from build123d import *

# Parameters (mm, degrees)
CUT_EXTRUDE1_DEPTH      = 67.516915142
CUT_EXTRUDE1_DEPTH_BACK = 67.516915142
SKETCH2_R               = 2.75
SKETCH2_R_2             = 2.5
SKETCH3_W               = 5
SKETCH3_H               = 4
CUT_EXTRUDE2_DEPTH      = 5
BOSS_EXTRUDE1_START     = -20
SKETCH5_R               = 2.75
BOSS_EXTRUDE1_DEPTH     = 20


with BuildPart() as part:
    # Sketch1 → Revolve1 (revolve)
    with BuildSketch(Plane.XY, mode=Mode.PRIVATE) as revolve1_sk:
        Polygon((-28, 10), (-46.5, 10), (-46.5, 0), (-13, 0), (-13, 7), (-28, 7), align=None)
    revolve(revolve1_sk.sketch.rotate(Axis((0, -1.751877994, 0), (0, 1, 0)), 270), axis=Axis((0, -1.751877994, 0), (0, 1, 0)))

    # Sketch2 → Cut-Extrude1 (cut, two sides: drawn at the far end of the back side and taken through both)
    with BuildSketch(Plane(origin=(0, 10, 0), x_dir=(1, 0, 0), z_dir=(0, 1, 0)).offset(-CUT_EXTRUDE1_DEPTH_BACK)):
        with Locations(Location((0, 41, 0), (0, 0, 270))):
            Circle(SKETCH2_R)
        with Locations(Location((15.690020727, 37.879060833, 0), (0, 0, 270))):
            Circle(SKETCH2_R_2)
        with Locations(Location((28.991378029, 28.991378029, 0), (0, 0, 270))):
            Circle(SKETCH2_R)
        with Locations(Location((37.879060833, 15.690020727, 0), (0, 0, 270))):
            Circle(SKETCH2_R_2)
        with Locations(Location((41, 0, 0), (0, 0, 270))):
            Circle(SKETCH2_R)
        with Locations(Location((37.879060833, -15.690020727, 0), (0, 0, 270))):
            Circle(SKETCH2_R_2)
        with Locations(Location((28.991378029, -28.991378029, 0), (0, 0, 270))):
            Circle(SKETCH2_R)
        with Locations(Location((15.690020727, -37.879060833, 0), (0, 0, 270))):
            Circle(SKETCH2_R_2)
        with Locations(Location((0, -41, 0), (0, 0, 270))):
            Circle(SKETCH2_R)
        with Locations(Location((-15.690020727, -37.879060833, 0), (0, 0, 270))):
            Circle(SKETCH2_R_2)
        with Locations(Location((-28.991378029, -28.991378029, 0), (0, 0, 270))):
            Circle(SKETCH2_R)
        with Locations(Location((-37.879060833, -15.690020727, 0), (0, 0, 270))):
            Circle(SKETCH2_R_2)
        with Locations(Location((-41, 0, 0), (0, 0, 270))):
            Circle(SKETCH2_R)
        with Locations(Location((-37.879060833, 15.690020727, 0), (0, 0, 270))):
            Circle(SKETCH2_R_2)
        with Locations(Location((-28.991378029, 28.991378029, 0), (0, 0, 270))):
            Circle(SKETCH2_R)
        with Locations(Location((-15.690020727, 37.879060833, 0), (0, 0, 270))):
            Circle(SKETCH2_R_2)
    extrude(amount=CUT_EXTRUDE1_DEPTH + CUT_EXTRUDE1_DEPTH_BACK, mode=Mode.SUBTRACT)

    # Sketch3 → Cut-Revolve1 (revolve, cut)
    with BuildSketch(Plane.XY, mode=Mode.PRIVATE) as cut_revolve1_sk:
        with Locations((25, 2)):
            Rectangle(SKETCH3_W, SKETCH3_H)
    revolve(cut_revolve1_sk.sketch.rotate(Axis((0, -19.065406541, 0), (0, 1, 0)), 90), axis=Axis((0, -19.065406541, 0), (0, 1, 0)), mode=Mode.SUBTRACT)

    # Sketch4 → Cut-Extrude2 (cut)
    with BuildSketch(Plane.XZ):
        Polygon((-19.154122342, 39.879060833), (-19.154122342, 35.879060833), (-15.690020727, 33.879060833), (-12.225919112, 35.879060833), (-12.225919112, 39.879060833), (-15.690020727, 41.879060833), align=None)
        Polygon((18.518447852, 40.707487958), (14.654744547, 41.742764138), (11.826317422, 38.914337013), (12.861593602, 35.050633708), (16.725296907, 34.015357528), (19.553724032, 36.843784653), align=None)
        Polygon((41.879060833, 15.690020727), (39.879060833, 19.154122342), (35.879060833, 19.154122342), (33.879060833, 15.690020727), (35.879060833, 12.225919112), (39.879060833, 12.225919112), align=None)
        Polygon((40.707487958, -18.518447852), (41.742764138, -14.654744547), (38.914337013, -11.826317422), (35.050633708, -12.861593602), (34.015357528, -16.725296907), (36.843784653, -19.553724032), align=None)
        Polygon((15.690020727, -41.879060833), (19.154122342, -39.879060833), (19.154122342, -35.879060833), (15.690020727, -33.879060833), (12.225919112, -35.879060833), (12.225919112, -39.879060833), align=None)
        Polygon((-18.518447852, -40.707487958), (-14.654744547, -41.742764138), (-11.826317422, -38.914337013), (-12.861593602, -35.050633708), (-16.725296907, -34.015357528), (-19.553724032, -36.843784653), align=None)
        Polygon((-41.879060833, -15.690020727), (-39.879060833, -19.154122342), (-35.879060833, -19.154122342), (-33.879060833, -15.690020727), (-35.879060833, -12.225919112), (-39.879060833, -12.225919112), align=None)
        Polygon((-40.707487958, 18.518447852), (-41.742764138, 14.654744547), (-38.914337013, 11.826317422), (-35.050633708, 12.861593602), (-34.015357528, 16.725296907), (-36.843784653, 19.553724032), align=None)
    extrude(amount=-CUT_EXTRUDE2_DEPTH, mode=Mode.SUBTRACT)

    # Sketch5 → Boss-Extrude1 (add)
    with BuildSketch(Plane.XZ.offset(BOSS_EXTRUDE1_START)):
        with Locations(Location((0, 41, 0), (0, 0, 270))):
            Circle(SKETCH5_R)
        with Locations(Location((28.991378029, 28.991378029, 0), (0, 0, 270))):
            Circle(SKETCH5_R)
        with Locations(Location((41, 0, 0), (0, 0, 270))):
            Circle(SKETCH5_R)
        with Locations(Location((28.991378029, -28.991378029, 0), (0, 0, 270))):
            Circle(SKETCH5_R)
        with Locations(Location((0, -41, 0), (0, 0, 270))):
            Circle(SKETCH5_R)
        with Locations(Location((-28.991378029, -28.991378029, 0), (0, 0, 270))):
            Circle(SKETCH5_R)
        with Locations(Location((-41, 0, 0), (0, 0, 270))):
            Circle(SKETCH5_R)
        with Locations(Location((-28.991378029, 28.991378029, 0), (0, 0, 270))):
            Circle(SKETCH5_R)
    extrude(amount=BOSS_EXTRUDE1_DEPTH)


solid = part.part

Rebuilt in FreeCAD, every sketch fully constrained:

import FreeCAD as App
import Part
import Sketcher

V = App.Vector
Q = App.Units.Quantity


def add_polygon(sketch, points):
    """Adds a closed chain of lines whose ends are joined by coincident constraints."""
    first, n = sketch.GeometryCount, len(points)
    for a, b in zip(points, points[1:] + points[:1]):
        sketch.addGeometry(Part.LineSegment(App.Vector(*a, 0), App.Vector(*b, 0)), False)
    for i in range(n):
        sketch.addConstraint(Sketcher.Constraint("Coincident", first + i, 2, first + (i + 1) % n, 1))

doc = App.newDocument("Part")
body = doc.addObject("PartDesign::Body", "Body")

# Sketch on XY plane
sketch1 = body.newObject("Sketcher::SketchObject", "Sketch")
sketch1.AttachmentSupport = (doc.getObject("XY_Plane"), [""])
sketch1.MapMode = "FlatFace"
add_polygon(sketch1, [(-28, 10), (-46.5, 10), (-46.5, 0), (-13, 0), (-13, 7), (-28, 7)])  # lines 0-5
sketch1.addConstraint(Sketcher.Constraint("Horizontal", 0))
sketch1.addConstraint(Sketcher.Constraint("Vertical", 1))
sketch1.addConstraint(Sketcher.Constraint("Horizontal", 2))
sketch1.addConstraint(Sketcher.Constraint("Vertical", 3))
sketch1.addConstraint(Sketcher.Constraint("Horizontal", 4))
sketch1.addConstraint(Sketcher.Constraint("Vertical", 5))
sketch1.addConstraint(Sketcher.Constraint("PointOnObject", 1, 2, -1))
sketch1.addConstraint(Sketcher.Constraint("DistanceX", 4, 2, 4, 1, Q("15 mm")))
sketch1.addConstraint(Sketcher.Constraint("DistanceY", 1, 2, 1, 1, Q("10 mm")))
sketch1.addConstraint(Sketcher.Constraint("DistanceY", 3, 1, 3, 2, Q("7 mm")))
sketch1.addConstraint(Sketcher.Constraint("DistanceX", 0, 2, 0, 1, Q("18.5 mm")))
sketch1.addConstraint(Sketcher.Constraint("DistanceX", 2, 2, -1, 1, Q("13 mm")))
revolution = body.newObject("PartDesign::Revolution", "Revolution")
revolution.Profile = sketch1
revolution.ReferenceAxis = (sketch1, ["V_Axis"])
revolution.Angle = 360

# Sketch on XZ plane
sketch2 = body.newObject("Sketcher::SketchObject", "Sketch001")
sketch2.AttachmentSupport = (doc.getObject("XZ_Plane"), [""])
sketch2.MapMode = "FlatFace"
sketch2.AttachmentOffset = App.Placement(V(0, 0, -10), App.Rotation())
sketch2.addGeometry(Part.Circle(V(0, -41, 0), V(0, 0, 1), 2.8), False)
sketch2.addGeometry(Part.Circle(V(15.7, -37.9, 0), V(0, 0, 1), 2.5), False)
sketch2.addGeometry(Part.Circle(V(29, -29, 0), V(0, 0, 1), 2.8), False)
sketch2.addGeometry(Part.Circle(V(37.9, -15.7, 0), V(0, 0, 1), 2.5), False)
sketch2.addGeometry(Part.Circle(V(41, 0, 0), V(0, 0, 1), 2.8), False)
sketch2.addGeometry(Part.Circle(V(37.9, 15.7, 0), V(0, 0, 1), 2.5), False)
sketch2.addGeometry(Part.Circle(V(29, 29, 0), V(0, 0, 1), 2.8), False)
sketch2.addGeometry(Part.Circle(V(15.7, 37.9, 0), V(0, 0, 1), 2.5), False)
sketch2.addGeometry(Part.Circle(V(0, 41, 0), V(0, 0, 1), 2.8), False)
sketch2.addGeometry(Part.Circle(V(-15.7, 37.9, 0), V(0, 0, 1), 2.5), False)
sketch2.addGeometry(Part.Circle(V(-29, 29, 0), V(0, 0, 1), 2.8), False)
sketch2.addGeometry(Part.Circle(V(-37.9, 15.7, 0), V(0, 0, 1), 2.5), False)
sketch2.addGeometry(Part.Circle(V(-41, 0, 0), V(0, 0, 1), 2.8), False)
sketch2.addGeometry(Part.Circle(V(-37.9, -15.7, 0), V(0, 0, 1), 2.5), False)
sketch2.addGeometry(Part.Circle(V(-29, -29, 0), V(0, 0, 1), 2.8), False)
sketch2.addGeometry(Part.Circle(V(-15.7, -37.9, 0), V(0, 0, 1), 2.5), False)
sketch2.addConstraint(Sketcher.Constraint("Equal", 0, 2))
sketch2.addConstraint(Sketcher.Constraint("Equal", 1, 3))
sketch2.addConstraint(Sketcher.Constraint("Equal", 2, 4))
sketch2.addConstraint(Sketcher.Constraint("Equal", 3, 5))
sketch2.addConstraint(Sketcher.Constraint("Equal", 4, 6))
sketch2.addConstraint(Sketcher.Constraint("Equal", 5, 7))
sketch2.addConstraint(Sketcher.Constraint("Equal", 6, 8))
sketch2.addConstraint(Sketcher.Constraint("Equal", 7, 9))
sketch2.addConstraint(Sketcher.Constraint("Equal", 8, 10))
sketch2.addConstraint(Sketcher.Constraint("Equal", 9, 11))
sketch2.addConstraint(Sketcher.Constraint("Equal", 10, 12))
sketch2.addConstraint(Sketcher.Constraint("Equal", 11, 13))
sketch2.addConstraint(Sketcher.Constraint("Equal", 12, 14))
sketch2.addConstraint(Sketcher.Constraint("Equal", 13, 15))
sketch2.addConstraint(Sketcher.Constraint("Symmetric", 0, 3, 8, 3, -1, 1))
sketch2.addConstraint(Sketcher.Constraint("Symmetric", 1, 3, 9, 3, -1, 1))
sketch2.addConstraint(Sketcher.Constraint("Symmetric", 2, 3, 10, 3, -1, 1))
sketch2.addConstraint(Sketcher.Constraint("Symmetric", 3, 3, 11, 3, -1, 1))
sketch2.addConstraint(Sketcher.Constraint("Symmetric", 4, 3, 12, 3, -1, 1))
sketch2.addConstraint(Sketcher.Constraint("Symmetric", 5, 3, 13, 3, -1, 1))
sketch2.addConstraint(Sketcher.Constraint("Symmetric", 6, 3, 14, 3, -1, 1))
sketch2.addConstraint(Sketcher.Constraint("Symmetric", 7, 3, 15, 3, -1, 1))
sketch2.addConstraint(Sketcher.Constraint("Symmetric", 7, 3, 9, 3, -2))
sketch2.addConstraint(Sketcher.Constraint("Symmetric", 6, 3, 10, 3, -2))
sketch2.addConstraint(Sketcher.Constraint("Symmetric", 5, 3, 11, 3, -2))
sketch2.addConstraint(Sketcher.Constraint("PointOnObject", 0, 3, -2))
sketch2.addConstraint(Sketcher.Constraint("PointOnObject", 4, 3, -1))
sketch2.addConstraint(Sketcher.Constraint("Diameter", 1, Q("5 mm")))
sketch2.addConstraint(Sketcher.Constraint("Diameter", 0, Q("5.5 mm")))
sketch2.addConstraint(Sketcher.Constraint("DistanceY", 0, 3, -1, 1, Q("41 mm")))
sketch2.addConstraint(Sketcher.Constraint("DistanceX", -1, 1, 4, 3, Q("41 mm")))
sketch2.addConstraint(Sketcher.Constraint("DistanceY", 2, 3, 5, 3, Q("44.681399 mm")))
sketch2.addConstraint(Sketcher.Constraint("DistanceX", 9, 3, 6, 3, Q("44.681399 mm")))
sketch2.addConstraint(Sketcher.Constraint("DistanceX", -1, 1, 1, 3, Q("15.690021 mm")))
sketch2.addConstraint(Sketcher.Constraint("DistanceY", 1, 3, -1, 1, Q("37.879061 mm")))
sketch2.addConstraint(Sketcher.Constraint("DistanceY", 2, 3, -1, 1, Q("28.991378 mm")))
sketch2.addConstraint(Sketcher.Constraint("DistanceX", -1, 1, 3, 3, Q("37.879061 mm")))
pocket1 = body.newObject("PartDesign::Pocket", "Pocket")
pocket1.Profile = sketch2
pocket1.Type = "ThroughAll"
pocket1.Midplane = True

# Sketch on XY plane
sketch3 = body.newObject("Sketcher::SketchObject", "Sketch002")
sketch3.AttachmentSupport = (doc.getObject("XY_Plane"), [""])
sketch3.MapMode = "FlatFace"
add_polygon(sketch3, [(22.5, 4), (22.5, 0), (27.5, 0), (27.5, 4)])  # lines 0-3
sketch3.addConstraint(Sketcher.Constraint("Vertical", 0))
sketch3.addConstraint(Sketcher.Constraint("Horizontal", 1))
sketch3.addConstraint(Sketcher.Constraint("Vertical", 2))
sketch3.addConstraint(Sketcher.Constraint("Horizontal", 3))
sketch3.addConstraint(Sketcher.Constraint("PointOnObject", 0, 2, -1))
sketch3.addConstraint(Sketcher.Constraint("DistanceX", 1, 1, 1, 2, Q("5 mm")))
sketch3.addConstraint(Sketcher.Constraint("DistanceY", 0, 2, 0, 1, Q("4 mm")))
sketch3.addConstraint(Sketcher.Constraint("DistanceX", -1, 1, 0, 2, Q("22.5 mm")))
groove = body.newObject("PartDesign::Groove", "Groove")
groove.Profile = sketch3
groove.ReferenceAxis = (sketch3, ["V_Axis"])
groove.Angle = 360

# Sketch on XZ plane
sketch4 = body.newObject("Sketcher::SketchObject", "Sketch003")
sketch4.AttachmentSupport = (doc.getObject("XZ_Plane"), [""])
sketch4.MapMode = "FlatFace"
add_polygon(sketch4, [(-19.2, 39.9), (-19.2, 35.9), (-15.7, 33.9), (-12.2, 35.9), (-12.2, 39.9), (-15.7, 41.9)])  # lines 0-5
add_polygon(sketch4, [(18.5, 40.7), (14.7, 41.7), (11.8, 38.9), (12.9, 35.1), (16.7, 34), (19.6, 36.8)])  # lines 6-11
add_polygon(sketch4, [(41.9, 15.7), (39.9, 19.2), (35.9, 19.2), (33.9, 15.7), (35.9, 12.2), (39.9, 12.2)])  # lines 12-17
add_polygon(sketch4, [(40.7, -18.5), (41.7, -14.7), (38.9, -11.8), (35.1, -12.9), (34, -16.7), (36.8, -19.6)])  # lines 18-23
add_polygon(sketch4, [(15.7, -41.9), (19.2, -39.9), (19.2, -35.9), (15.7, -33.9), (12.2, -35.9), (12.2, -39.9)])  # lines 24-29
add_polygon(sketch4, [(-18.5, -40.7), (-14.7, -41.7), (-11.8, -38.9), (-12.9, -35.1), (-16.7, -34), (-19.6, -36.8)])  # lines 30-35
add_polygon(sketch4, [(-41.9, -15.7), (-39.9, -19.2), (-35.9, -19.2), (-33.9, -15.7), (-35.9, -12.2), (-39.9, -12.2)])  # lines 36-41
add_polygon(sketch4, [(-40.7, 18.5), (-41.7, 14.7), (-38.9, 11.8), (-35.1, 12.9), (-34, 16.7), (-36.8, 19.6)])  # lines 42-47
sketch4.addConstraint(Sketcher.Constraint("Vertical", 0))
sketch4.addConstraint(Sketcher.Constraint("Vertical", 3))
sketch4.addConstraint(Sketcher.Constraint("Horizontal", 13))
sketch4.addConstraint(Sketcher.Constraint("Horizontal", 16))
sketch4.addConstraint(Sketcher.Constraint("Vertical", 25))
sketch4.addConstraint(Sketcher.Constraint("Vertical", 28))
sketch4.addConstraint(Sketcher.Constraint("Horizontal", 37))
sketch4.addConstraint(Sketcher.Constraint("Horizontal", 40))
sketch4.addConstraint(Sketcher.Constraint("Symmetric", 5, 2, 24, 2, -1, 1))
sketch4.addConstraint(Sketcher.Constraint("Symmetric", 1, 2, 26, 2, -1, 1))
sketch4.addConstraint(Sketcher.Constraint("Symmetric", 2, 2, 27, 2, -1, 1))
sketch4.addConstraint(Sketcher.Constraint("Symmetric", 4, 2, 29, 2, -1, 1))
sketch4.addConstraint(Sketcher.Constraint("Symmetric", 6, 2, 30, 2, -1, 1))
sketch4.addConstraint(Sketcher.Constraint("Symmetric", 7, 2, 31, 2, -1, 1))
sketch4.addConstraint(Sketcher.Constraint("Symmetric", 8, 2, 32, 2, -1, 1))
sketch4.addConstraint(Sketcher.Constraint("Symmetric", 9, 2, 33, 2, -1, 1))
sketch4.addConstraint(Sketcher.Constraint("Symmetric", 10, 2, 34, 2, -1, 1))
sketch4.addConstraint(Sketcher.Constraint("Symmetric", 11, 2, 35, 2, -1, 1))
sketch4.addConstraint(Sketcher.Constraint("Symmetric", 12, 2, 36, 2, -1, 1))
sketch4.addConstraint(Sketcher.Constraint("Symmetric", 14, 2, 38, 2, -1, 1))
sketch4.addConstraint(Sketcher.Constraint("Symmetric", 15, 2, 39, 2, -1, 1))
sketch4.addConstraint(Sketcher.Constraint("Symmetric", 17, 2, 41, 2, -1, 1))
sketch4.addConstraint(Sketcher.Constraint("Symmetric", 18, 2, 42, 2, -1, 1))
sketch4.addConstraint(Sketcher.Constraint("Symmetric", 19, 2, 43, 2, -1, 1))
sketch4.addConstraint(Sketcher.Constraint("Symmetric", 20, 2, 44, 2, -1, 1))
sketch4.addConstraint(Sketcher.Constraint("Symmetric", 21, 2, 45, 2, -1, 1))
sketch4.addConstraint(Sketcher.Constraint("Symmetric", 22, 2, 46, 2, -1, 1))
sketch4.addConstraint(Sketcher.Constraint("Symmetric", 23, 2, 47, 2, -1, 1))
sketch4.addConstraint(Sketcher.Constraint("Parallel", 1, 4))
sketch4.addConstraint(Sketcher.Constraint("Parallel", 2, 5))
sketch4.addConstraint(Sketcher.Constraint("Parallel", 6, 9))
sketch4.addConstraint(Sketcher.Constraint("Parallel", 7, 10))
sketch4.addConstraint(Sketcher.Constraint("Parallel", 8, 11))
sketch4.addConstraint(Sketcher.Constraint("Perpendicular", 5, 12))
sketch4.addConstraint(Sketcher.Constraint("Perpendicular", 4, 14))
sketch4.addConstraint(Sketcher.Constraint("Parallel", 12, 15))
sketch4.addConstraint(Sketcher.Constraint("Parallel", 14, 17))
sketch4.addConstraint(Sketcher.Constraint("Perpendicular", 9, 18))
sketch4.addConstraint(Sketcher.Constraint("Perpendicular", 10, 19))
sketch4.addConstraint(Sketcher.Constraint("Perpendicular", 11, 20))
sketch4.addConstraint(Sketcher.Constraint("Parallel", 18, 21))
sketch4.addConstraint(Sketcher.Constraint("Parallel", 19, 22))
sketch4.addConstraint(Sketcher.Constraint("Parallel", 20, 23))
sketch4.addConstraint(Sketcher.Constraint("Perpendicular", 17, 26))
sketch4.addConstraint(Sketcher.Constraint("Parallel", 26, 29))
sketch4.addConstraint(Sketcher.Constraint("Perpendicular", 29, 38))
sketch4.addConstraint(Sketcher.Constraint("Parallel", 38, 41))
sketch4.addConstraint(Sketcher.Constraint("Horizontal", 0, 2, 2, 2))
sketch4.addConstraint(Sketcher.Constraint("Horizontal", 3, 2, 5, 2))
sketch4.addConstraint(Sketcher.Constraint("Horizontal", 14, 2, 17, 2))
sketch4.addConstraint(Sketcher.Constraint("Vertical", 1, 2, 4, 2))
sketch4.addConstraint(Sketcher.Constraint("Vertical", 13, 2, 15, 2))
sketch4.addConstraint(Sketcher.Constraint("Equal", 40, 0))
sketch4.addConstraint(Sketcher.Constraint("Equal", 5, 6))
sketch4.addConstraint(Sketcher.Constraint("Equal", 6, 7))
sketch4.addConstraint(Sketcher.Constraint("Equal", 7, 8))
sketch4.addConstraint(Sketcher.Constraint("Equal", 8, 9))
sketch4.addConstraint(Sketcher.Constraint("Equal", 11, 12))
sketch4.addConstraint(Sketcher.Constraint("Equal", 17, 18))
sketch4.addConstraint(Sketcher.Constraint("Equal", 18, 19))
sketch4.addConstraint(Sketcher.Constraint("Equal", 19, 20))
sketch4.addConstraint(Sketcher.Constraint("Equal", 20, 21))
sketch4.addConstraint(Sketcher.Constraint("DistanceX", 13, 2, 13, 1, Q("4 mm")))
sketch4.addConstraint(Sketcher.Constraint("Angle", 1, Q("-30 deg")))
sketch4.addConstraint(Sketcher.Constraint("Angle", 6, Q("165 deg")))
sketch4.addConstraint(Sketcher.Constraint("Angle", 7, Q("-135 deg")))
sketch4.addConstraint(Sketcher.Constraint("Angle", 8, Q("-75 deg")))
sketch4.addConstraint(Sketcher.Constraint("Distance", 1, Q("4 mm")))
sketch4.addConstraint(Sketcher.Constraint("DistanceY", -1, 1, 0, 2, Q("35.879061 mm")))
sketch4.addConstraint(Sketcher.Constraint("DistanceX", 1, 2, -1, 1, Q("15.690021 mm")))
sketch4.addConstraint(Sketcher.Constraint("DistanceX", -1, 1, 12, 2, Q("39.879061 mm")))
sketch4.addConstraint(Sketcher.Constraint("DistanceY", -1, 1, 14, 2, Q("15.690021 mm")))
sketch4.addConstraint(Sketcher.Constraint("DistanceX", 4, 2, 7, 2, Q("27.516338 mm")))
sketch4.addConstraint(Sketcher.Constraint("DistanceY", 12, 2, 8, 2, Q("15.896511 mm")))
sketch4.addConstraint(Sketcher.Constraint("DistanceY", 19, 2, 17, 2, Q("27.516338 mm")))
sketch4.addConstraint(Sketcher.Constraint("DistanceX", 24, 2, 20, 2, Q("15.896511 mm")))
pocket2 = body.newObject("PartDesign::Pocket", "Pocket001")
pocket2.Profile = sketch4
pocket2.Length = 5

# Sketch on XZ plane
sketch5 = body.newObject("Sketcher::SketchObject", "Sketch004")
sketch5.AttachmentSupport = (doc.getObject("XZ_Plane"), [""])
sketch5.MapMode = "FlatFace"
sketch5.AttachmentOffset = App.Placement(V(0, 0, -20), App.Rotation())
sketch5.addGeometry(Part.Circle(V(0, 41, 0), V(0, 0, 1), 2.8), False)
sketch5.addGeometry(Part.Circle(V(29, 29, 0), V(0, 0, 1), 2.8), False)
sketch5.addGeometry(Part.Circle(V(41, 0, 0), V(0, 0, 1), 2.8), False)
sketch5.addGeometry(Part.Circle(V(29, -29, 0), V(0, 0, 1), 2.8), False)
sketch5.addGeometry(Part.Circle(V(0, -41, 0), V(0, 0, 1), 2.8), False)
sketch5.addGeometry(Part.Circle(V(-29, -29, 0), V(0, 0, 1), 2.8), False)
sketch5.addGeometry(Part.Circle(V(-41, 0, 0), V(0, 0, 1), 2.8), False)
sketch5.addGeometry(Part.Circle(V(-29, 29, 0), V(0, 0, 1), 2.8), False)
sketch5.addConstraint(Sketcher.Constraint("Equal", 0, 1))
sketch5.addConstraint(Sketcher.Constraint("Equal", 1, 2))
sketch5.addConstraint(Sketcher.Constraint("Equal", 2, 3))
sketch5.addConstraint(Sketcher.Constraint("Equal", 3, 4))
sketch5.addConstraint(Sketcher.Constraint("Equal", 4, 5))
sketch5.addConstraint(Sketcher.Constraint("Equal", 5, 6))
sketch5.addConstraint(Sketcher.Constraint("Equal", 6, 7))
sketch5.addConstraint(Sketcher.Constraint("Symmetric", 0, 3, 4, 3, -1, 1))
sketch5.addConstraint(Sketcher.Constraint("Symmetric", 1, 3, 5, 3, -1, 1))
sketch5.addConstraint(Sketcher.Constraint("Symmetric", 2, 3, 6, 3, -1, 1))
sketch5.addConstraint(Sketcher.Constraint("Symmetric", 3, 3, 7, 3, -1, 1))
sketch5.addConstraint(Sketcher.Constraint("Symmetric", 3, 3, 5, 3, -2))
sketch5.addConstraint(Sketcher.Constraint("PointOnObject", 0, 3, -2))
sketch5.addConstraint(Sketcher.Constraint("PointOnObject", 2, 3, -1))
sketch5.addConstraint(Sketcher.Constraint("Diameter", 0, Q("5.5 mm")))
sketch5.addConstraint(Sketcher.Constraint("DistanceY", -1, 1, 0, 3, Q("41 mm")))
sketch5.addConstraint(Sketcher.Constraint("DistanceX", -1, 1, 2, 3, Q("41 mm")))
sketch5.addConstraint(Sketcher.Constraint("DistanceX", -1, 1, 1, 3, Q("28.991378 mm")))
sketch5.addConstraint(Sketcher.Constraint("DistanceY", -1, 1, 1, 3, Q("28.991378 mm")))
pad1 = body.newObject("PartDesign::Pad", "Pad")
pad1.Profile = sketch5
pad1.Length = 20

doc.recompute()
